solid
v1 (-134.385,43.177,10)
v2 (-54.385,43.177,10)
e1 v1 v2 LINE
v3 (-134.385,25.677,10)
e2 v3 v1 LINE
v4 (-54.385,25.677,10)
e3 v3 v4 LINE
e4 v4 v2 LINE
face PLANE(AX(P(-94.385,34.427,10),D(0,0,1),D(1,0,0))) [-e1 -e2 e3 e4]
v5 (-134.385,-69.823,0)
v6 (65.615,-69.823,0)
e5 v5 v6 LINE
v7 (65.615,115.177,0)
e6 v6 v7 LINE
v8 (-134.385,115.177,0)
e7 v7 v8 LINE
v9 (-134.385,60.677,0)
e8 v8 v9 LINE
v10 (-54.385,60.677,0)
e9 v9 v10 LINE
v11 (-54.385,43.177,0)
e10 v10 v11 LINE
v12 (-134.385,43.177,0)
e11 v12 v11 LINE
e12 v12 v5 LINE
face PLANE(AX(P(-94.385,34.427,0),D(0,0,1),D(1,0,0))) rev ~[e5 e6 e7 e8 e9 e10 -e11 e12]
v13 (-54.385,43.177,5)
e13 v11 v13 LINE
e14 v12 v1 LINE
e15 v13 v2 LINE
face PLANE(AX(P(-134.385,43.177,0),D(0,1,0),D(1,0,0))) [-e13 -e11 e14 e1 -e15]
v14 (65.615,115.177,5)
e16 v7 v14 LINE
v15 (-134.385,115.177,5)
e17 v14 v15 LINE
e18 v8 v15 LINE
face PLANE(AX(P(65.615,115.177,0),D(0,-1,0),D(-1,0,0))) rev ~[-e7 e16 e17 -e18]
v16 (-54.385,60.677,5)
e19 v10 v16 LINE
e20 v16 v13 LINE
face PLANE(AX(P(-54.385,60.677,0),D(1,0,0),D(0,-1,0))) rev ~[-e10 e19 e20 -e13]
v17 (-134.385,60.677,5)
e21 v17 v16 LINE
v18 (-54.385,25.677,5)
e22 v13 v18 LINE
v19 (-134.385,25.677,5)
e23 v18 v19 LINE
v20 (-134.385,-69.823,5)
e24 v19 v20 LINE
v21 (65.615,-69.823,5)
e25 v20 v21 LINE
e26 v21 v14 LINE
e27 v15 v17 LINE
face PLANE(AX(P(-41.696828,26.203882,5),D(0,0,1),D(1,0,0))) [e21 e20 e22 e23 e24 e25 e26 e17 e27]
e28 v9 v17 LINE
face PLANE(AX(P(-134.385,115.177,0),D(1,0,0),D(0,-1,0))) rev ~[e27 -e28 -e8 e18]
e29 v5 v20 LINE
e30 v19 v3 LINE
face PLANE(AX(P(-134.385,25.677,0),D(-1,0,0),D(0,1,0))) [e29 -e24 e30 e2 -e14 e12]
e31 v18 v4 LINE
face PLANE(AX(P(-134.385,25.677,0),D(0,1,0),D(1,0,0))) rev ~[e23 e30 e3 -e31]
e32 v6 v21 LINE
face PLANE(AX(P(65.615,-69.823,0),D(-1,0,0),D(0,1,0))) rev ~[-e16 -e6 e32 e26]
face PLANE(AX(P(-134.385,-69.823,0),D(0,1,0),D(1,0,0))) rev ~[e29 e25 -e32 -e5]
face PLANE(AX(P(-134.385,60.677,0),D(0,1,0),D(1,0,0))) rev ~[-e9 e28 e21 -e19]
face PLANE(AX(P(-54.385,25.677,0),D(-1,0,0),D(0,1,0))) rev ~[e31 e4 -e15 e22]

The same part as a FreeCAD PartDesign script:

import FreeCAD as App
import Part
import Sketcher

doc = App.newDocument("Part")
params = doc.addObject("Spreadsheet::Sheet", "Params")
for row, (alias, value) in enumerate([
    ("sketch1_width", "200 mm"),
    ("sketch1_width2", "80 mm"),
    ("sketch1_height", "185 mm"),
    ("sketch1_height2", "35 mm"),
    ("sketch1_height3", "54.5 mm"),
    ("pad1_length", "5 mm"),
    ("sketch2_width", "80 mm"),
    ("sketch2_height", "17.5 mm"),
    ("pad2_length", "10 mm"),
], start=1):
    params.set(f"A{row}", alias)
    params.set(f"B{row}", "=" + value)
    params.setAlias(f"B{row}", alias)

body = doc.addObject("PartDesign::Body", "Body")

sketch1 = body.newObject("Sketcher::SketchObject", "Sketch")
sketch1.AttachmentSupport = (doc.getObject("XY_Plane"), [""])
sketch1.MapMode = "FlatFace"
sketch1.addGeometry([
    Part.LineSegment(App.Vector(-134, -70, 0), App.Vector(66, -70, 0)),
    Part.LineSegment(App.Vector(66, -70, 0), App.Vector(66, 115, 0)),
    Part.LineSegment(App.Vector(66, 115, 0), App.Vector(-134, 115, 0)),
    Part.LineSegment(App.Vector(-134, 115, 0), App.Vector(-134, 61, 0)),
    Part.LineSegment(App.Vector(-134, 61, 0), App.Vector(-54, 61, 0)),
    Part.LineSegment(App.Vector(-54, 61, 0), App.Vector(-54, 26, 0)),
    Part.LineSegment(App.Vector(-54, 26, 0), App.Vector(-134, 26, 0)),
    Part.LineSegment(App.Vector(-134, 26, 0), App.Vector(-134, -70, 0)),
], False)
sketch1.addConstraint([
    Sketcher.Constraint("Coincident", 0, 2, 1, 1),
    Sketcher.Constraint("Coincident", 1, 2, 2, 1),
    Sketcher.Constraint("Coincident", 2, 2, 3, 1),
    Sketcher.Constraint("Coincident", 3, 2, 4, 1),
    Sketcher.Constraint("Coincident", 4, 2, 5, 1),
    Sketcher.Constraint("Coincident", 5, 2, 6, 1),
    Sketcher.Constraint("Coincident", 6, 2, 7, 1),
    Sketcher.Constraint("Coincident", 7, 2, 0, 1),
    Sketcher.Constraint("Horizontal", 0),
    Sketcher.Constraint("Vertical", 1),
    Sketcher.Constraint("Horizontal", 2),
    Sketcher.Constraint("Vertical", 3),
    Sketcher.Constraint("Horizontal", 4),
    Sketcher.Constraint("Vertical", 5),
    Sketcher.Constraint("Horizontal", 6),
    Sketcher.Constraint("Vertical", 7),
    Sketcher.Constraint("Vertical", 3, 2, 6, 2),
    Sketcher.Constraint("DistanceX", 0, 1, 0, 2, 200.0),
    Sketcher.Constraint("DistanceX", 4, 1, 4, 2, 80.0),
    Sketcher.Constraint("DistanceY", 1, 1, 1, 2, 185.0),
    Sketcher.Constraint("DistanceY", 5, 2, 5, 1, 35.0),
    Sketcher.Constraint("DistanceY", 3, 2, 3, 1, 54.5),
    Sketcher.Constraint("DistanceX", -1, 1, 0, 2, 65.615),
    Sketcher.Constraint("DistanceY", 0, 2, -1, 1, 69.823),
])
sketch1.setExpression("Constraints[17]", "Params.sketch1_width")
sketch1.setExpression("Constraints[18]", "Params.sketch1_width2")
sketch1.setExpression("Constraints[19]", "Params.sketch1_height")
sketch1.setExpression("Constraints[20]", "Params.sketch1_height2")
sketch1.setExpression("Constraints[21]", "Params.sketch1_height3")
pad1 = body.newObject("PartDesign::Pad", "Pad")
pad1.Profile = sketch1
pad1.setExpression("Length", "Params.pad1_length")

sketch2 = body.newObject("Sketcher::SketchObject", "Sketch001")
sketch2.AttachmentSupport = (doc.getObject("XY_Plane"), [""])
sketch2.MapMode = "FlatFace"
sketch2.addGeometry([
    Part.LineSegment(App.Vector(-134, 43, 0), App.Vector(-134, 26, 0)),
    Part.LineSegment(App.Vector(-134, 26, 0), App.Vector(-54, 26, 0)),
    Part.LineSegment(App.Vector(-54, 26, 0), App.Vector(-54, 43, 0)),
    Part.LineSegment(App.Vector(-54, 43, 0), App.Vector(-134, 43, 0)),
], False)
sketch2.addConstraint([
    Sketcher.Constraint("Coincident", 0, 2, 1, 1),
    Sketcher.Constraint("Coincident", 1, 2, 2, 1),
    Sketcher.Constraint("Coincident", 2, 2, 3, 1),
    Sketcher.Constraint("Coincident", 3, 2, 0, 1),
    Sketcher.Constraint("Vertical", 0),
    Sketcher.Constraint("Horizontal", 1),
    Sketcher.Constraint("Vertical", 2),
    Sketcher.Constraint("Horizontal", 3),
    Sketcher.Constraint("DistanceX", 1, 1, 1, 2, 80.0),
    Sketcher.Constraint("DistanceY", 0, 2, 0, 1, 17.5),
    Sketcher.Constraint("DistanceX", 0, 2, -1, 1, 134.385),
    Sketcher.Constraint("DistanceY", -1, 1, 0, 2, 25.677),
])
sketch2.setExpression("Constraints[8]", "Params.sketch2_width")
sketch2.setExpression("Constraints[9]", "Params.sketch2_height")
pad2 = body.newObject("PartDesign::Pad", "Pad001")
pad2.Profile = sketch2
pad2.setExpression("Length", "Params.pad2_length")

doc.recompute()
